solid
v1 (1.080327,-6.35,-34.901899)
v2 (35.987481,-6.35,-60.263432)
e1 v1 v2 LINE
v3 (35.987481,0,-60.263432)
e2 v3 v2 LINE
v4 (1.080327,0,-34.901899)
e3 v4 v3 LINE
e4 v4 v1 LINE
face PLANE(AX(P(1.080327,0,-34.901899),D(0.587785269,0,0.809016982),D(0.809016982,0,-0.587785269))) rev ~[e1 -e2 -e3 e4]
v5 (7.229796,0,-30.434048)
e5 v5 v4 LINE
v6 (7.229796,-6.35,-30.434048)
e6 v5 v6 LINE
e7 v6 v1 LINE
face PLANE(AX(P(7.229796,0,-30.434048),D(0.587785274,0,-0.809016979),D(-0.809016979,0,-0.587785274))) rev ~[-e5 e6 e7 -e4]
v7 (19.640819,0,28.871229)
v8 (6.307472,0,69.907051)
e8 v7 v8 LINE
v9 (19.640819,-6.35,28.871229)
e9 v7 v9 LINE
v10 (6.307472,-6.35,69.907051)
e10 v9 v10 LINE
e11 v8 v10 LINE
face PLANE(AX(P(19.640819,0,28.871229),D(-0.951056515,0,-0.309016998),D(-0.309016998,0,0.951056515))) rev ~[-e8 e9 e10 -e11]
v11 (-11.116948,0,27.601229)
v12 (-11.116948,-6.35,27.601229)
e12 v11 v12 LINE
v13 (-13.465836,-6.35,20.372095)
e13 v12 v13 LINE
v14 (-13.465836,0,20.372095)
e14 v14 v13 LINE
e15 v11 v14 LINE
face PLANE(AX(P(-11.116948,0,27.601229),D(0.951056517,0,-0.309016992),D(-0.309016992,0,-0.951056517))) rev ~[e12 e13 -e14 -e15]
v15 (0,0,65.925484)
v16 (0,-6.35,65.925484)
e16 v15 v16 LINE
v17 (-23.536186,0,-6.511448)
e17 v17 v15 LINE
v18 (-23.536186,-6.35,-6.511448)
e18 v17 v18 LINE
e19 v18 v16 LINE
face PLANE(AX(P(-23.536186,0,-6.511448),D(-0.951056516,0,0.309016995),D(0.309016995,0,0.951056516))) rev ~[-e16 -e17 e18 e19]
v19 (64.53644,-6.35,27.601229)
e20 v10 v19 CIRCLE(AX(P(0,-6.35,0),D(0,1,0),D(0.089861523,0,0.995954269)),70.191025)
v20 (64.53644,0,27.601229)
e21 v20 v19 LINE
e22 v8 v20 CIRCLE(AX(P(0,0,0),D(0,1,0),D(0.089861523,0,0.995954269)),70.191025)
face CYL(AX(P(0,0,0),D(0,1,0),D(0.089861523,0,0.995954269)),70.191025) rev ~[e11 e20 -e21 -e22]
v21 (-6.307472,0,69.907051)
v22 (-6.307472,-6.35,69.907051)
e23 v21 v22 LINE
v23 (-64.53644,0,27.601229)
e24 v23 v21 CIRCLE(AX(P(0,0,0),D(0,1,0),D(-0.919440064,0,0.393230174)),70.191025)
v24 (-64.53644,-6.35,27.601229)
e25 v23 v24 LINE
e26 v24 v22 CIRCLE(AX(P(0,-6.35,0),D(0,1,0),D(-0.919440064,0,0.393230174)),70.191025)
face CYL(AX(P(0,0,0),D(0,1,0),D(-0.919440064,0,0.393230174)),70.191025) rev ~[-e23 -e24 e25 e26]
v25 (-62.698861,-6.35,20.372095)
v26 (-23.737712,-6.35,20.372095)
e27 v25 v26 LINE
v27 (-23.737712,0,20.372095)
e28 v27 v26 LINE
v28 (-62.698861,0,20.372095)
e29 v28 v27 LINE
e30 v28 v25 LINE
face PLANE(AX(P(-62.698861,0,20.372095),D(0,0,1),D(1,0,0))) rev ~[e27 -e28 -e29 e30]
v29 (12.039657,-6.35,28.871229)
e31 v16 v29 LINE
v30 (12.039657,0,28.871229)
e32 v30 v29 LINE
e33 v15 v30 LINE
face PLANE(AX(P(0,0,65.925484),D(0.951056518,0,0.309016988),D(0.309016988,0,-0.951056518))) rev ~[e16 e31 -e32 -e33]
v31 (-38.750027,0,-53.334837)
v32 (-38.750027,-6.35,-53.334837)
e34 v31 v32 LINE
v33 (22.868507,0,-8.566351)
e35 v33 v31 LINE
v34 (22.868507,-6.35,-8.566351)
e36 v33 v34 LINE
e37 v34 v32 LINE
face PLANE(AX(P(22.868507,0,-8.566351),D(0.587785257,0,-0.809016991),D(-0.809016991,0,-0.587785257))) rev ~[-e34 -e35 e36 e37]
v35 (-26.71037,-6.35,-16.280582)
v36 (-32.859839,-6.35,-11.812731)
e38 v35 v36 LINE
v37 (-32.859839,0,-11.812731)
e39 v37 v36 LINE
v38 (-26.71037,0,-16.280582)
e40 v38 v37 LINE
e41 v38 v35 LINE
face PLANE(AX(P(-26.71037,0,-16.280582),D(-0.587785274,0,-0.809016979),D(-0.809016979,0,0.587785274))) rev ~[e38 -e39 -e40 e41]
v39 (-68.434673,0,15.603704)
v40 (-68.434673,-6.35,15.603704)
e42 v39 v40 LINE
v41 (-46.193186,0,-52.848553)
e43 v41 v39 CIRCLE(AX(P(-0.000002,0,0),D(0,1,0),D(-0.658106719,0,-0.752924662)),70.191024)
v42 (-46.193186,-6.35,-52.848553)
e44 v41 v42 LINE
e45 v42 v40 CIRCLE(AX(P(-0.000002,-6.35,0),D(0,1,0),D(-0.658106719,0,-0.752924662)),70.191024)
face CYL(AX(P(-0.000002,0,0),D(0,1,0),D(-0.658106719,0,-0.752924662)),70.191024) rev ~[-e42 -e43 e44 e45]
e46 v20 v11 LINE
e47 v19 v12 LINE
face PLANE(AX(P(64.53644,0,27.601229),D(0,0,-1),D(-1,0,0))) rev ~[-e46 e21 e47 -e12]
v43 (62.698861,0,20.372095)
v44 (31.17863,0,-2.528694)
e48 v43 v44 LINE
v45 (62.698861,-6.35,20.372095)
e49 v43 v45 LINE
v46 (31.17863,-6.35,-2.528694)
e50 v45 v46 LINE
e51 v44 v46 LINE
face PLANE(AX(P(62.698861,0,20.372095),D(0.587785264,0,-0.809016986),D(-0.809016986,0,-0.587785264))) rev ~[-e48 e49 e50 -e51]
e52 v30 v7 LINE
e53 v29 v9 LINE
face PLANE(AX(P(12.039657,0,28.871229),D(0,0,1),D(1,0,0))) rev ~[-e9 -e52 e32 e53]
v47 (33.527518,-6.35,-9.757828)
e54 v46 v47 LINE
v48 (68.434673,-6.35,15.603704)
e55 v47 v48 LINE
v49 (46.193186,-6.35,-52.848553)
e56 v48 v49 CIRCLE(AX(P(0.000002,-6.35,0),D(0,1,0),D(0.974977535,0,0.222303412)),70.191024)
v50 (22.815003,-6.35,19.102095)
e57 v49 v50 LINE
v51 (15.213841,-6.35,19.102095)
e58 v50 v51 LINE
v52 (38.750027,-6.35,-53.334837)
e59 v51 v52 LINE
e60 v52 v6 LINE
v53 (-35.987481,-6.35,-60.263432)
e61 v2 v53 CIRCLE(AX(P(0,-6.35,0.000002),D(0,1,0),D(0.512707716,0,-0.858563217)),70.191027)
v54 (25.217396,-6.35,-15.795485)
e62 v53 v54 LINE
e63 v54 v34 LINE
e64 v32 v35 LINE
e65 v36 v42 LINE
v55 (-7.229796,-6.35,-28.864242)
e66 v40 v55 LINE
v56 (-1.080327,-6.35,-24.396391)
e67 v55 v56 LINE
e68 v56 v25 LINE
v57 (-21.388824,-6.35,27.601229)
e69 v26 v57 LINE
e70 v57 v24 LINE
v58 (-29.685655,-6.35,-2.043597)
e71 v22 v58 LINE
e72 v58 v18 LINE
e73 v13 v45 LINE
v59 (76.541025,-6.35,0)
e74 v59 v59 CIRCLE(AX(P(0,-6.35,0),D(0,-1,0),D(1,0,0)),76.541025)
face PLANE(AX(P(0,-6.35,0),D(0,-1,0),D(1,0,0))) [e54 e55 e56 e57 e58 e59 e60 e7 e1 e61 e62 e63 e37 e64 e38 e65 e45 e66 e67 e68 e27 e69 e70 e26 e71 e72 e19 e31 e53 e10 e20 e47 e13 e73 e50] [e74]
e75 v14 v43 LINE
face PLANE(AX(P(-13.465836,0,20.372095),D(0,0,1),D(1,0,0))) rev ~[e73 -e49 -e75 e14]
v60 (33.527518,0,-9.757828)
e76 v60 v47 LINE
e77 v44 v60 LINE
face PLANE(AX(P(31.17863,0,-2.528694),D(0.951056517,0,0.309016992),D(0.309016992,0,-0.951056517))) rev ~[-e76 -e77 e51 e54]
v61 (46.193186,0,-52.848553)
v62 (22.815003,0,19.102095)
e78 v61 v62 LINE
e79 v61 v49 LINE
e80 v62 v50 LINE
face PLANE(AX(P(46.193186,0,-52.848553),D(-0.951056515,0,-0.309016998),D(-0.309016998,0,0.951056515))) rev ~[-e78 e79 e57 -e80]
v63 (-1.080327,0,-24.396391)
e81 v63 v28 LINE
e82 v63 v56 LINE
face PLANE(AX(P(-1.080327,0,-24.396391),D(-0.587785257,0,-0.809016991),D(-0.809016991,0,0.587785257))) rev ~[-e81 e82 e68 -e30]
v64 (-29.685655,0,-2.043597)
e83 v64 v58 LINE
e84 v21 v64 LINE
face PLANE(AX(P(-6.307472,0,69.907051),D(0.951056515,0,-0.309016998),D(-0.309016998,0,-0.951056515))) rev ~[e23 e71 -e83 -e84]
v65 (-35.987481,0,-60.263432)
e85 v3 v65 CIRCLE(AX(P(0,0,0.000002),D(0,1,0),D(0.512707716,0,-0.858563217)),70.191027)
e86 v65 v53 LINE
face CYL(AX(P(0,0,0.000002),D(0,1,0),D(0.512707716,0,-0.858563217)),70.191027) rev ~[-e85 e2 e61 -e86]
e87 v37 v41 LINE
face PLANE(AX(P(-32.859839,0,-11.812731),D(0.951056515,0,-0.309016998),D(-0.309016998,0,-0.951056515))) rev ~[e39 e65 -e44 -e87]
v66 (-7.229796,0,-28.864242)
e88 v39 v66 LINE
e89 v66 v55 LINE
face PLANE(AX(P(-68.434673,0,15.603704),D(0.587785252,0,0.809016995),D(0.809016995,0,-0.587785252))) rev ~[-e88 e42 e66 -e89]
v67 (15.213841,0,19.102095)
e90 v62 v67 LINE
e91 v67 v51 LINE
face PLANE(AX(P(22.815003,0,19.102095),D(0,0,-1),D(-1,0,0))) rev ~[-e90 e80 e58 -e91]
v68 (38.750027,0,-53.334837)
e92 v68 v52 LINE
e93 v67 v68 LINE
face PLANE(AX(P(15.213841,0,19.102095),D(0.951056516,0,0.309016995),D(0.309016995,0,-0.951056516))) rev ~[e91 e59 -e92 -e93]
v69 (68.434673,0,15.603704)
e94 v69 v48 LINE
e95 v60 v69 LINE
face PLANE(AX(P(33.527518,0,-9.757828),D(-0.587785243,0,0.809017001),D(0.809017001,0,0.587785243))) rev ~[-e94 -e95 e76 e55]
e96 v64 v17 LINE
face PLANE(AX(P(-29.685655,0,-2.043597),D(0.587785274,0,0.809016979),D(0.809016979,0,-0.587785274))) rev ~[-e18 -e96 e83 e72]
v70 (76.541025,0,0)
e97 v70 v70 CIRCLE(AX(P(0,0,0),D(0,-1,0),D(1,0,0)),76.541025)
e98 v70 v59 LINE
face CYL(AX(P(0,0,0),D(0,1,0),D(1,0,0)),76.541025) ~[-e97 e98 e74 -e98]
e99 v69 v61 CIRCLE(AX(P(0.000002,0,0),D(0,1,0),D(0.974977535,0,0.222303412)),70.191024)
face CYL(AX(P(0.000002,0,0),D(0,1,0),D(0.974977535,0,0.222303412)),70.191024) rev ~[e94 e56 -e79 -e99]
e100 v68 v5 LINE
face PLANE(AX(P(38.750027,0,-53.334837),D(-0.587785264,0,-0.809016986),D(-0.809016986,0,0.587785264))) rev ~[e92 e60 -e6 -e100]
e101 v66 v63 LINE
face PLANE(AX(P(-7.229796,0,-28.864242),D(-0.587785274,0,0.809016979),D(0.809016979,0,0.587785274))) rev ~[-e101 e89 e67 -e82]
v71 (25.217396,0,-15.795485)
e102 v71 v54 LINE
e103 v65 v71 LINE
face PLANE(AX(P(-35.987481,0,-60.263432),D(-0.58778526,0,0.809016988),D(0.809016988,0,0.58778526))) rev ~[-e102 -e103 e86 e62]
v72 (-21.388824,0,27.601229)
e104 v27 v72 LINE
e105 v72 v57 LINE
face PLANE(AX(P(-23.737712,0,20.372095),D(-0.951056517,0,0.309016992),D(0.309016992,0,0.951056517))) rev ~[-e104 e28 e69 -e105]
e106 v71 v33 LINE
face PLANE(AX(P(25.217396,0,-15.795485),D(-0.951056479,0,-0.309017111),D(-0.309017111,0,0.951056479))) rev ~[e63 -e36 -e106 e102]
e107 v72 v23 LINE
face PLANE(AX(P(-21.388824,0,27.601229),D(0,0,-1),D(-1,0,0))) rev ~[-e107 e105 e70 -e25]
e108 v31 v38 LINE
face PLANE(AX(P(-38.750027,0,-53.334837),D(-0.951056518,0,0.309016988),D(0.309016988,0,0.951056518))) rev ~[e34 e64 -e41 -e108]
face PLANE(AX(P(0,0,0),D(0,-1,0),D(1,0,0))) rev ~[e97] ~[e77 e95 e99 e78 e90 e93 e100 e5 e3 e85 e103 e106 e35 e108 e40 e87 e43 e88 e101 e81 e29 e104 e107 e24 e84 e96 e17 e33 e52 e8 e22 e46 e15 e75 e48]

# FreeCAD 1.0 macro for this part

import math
import FreeCAD as App
import Part
import Sketcher
from FreeCAD import Vector
Q = App.Units.Quantity

doc = App.newDocument("Part")
body = doc.addObject("PartDesign::Body", "Body")

# Sketch on XZ plane
sketch1 = body.newObject("Sketcher::SketchObject", "Sketch")
sketch1.AttachmentSupport = (doc.getObject("XZ_Plane"), [""])
sketch1.MapMode = "FlatFace"
sketch1.addGeometry(Part.Circle(Vector(0, 0, 0), Vector(0, 0, 1), 77), False)
sketch1.addGeometry(Part.LineSegment(Vector(-21, 28, 0), Vector(-65, 28, 0)), False)
sketch1.addGeometry(Part.ArcOfCircle(Part.Circle(Vector(0, 0, 0), Vector(0, 0, 1), 70), math.radians(95), math.radians(157)), False)
sketch1.addGeometry(Part.LineSegment(Vector(-6, 70, 0), Vector(-30, -2, 0)), False)
sketch1.addGeometry(Part.LineSegment(Vector(-30, -2, 0), Vector(-24, -7, 0)), False)
sketch1.addGeometry(Part.LineSegment(Vector(-24, -7, 0), Vector(0, 66, 0)), False)
sketch1.addGeometry(Part.LineSegment(Vector(0, 66, 0), Vector(12, 29, 0)), False)
sketch1.addGeometry(Part.LineSegment(Vector(12, 29, 0), Vector(20, 29, 0)), False)
sketch1.addGeometry(Part.LineSegment(Vector(20, 29, 0), Vector(6, 70, 0)), False)
sketch1.addGeometry(Part.ArcOfCircle(Part.Circle(Vector(0, 0, 0), Vector(0, 0, 1), 70), math.radians(23), math.radians(85)), False)
sketch1.addGeometry(Part.LineSegment(Vector(65, 28, 0), Vector(-11, 28, 0)), False)
sketch1.addGeometry(Part.LineSegment(Vector(-11, 28, 0), Vector(-13, 20, 0)), False)
sketch1.addGeometry(Part.LineSegment(Vector(-13, 20, 0), Vector(63, 20, 0)), False)
sketch1.addGeometry(Part.LineSegment(Vector(63, 20, 0), Vector(31, -3, 0)), False)
sketch1.addGeometry(Part.LineSegment(Vector(31, -3, 0), Vector(34, -10, 0)), False)
sketch1.addGeometry(Part.LineSegment(Vector(34, -10, 0), Vector(68, 16, 0)), False)
sketch1.addGeometry(Part.ArcOfCircle(Part.Circle(Vector(0, 0, 0), Vector(0, 0, 1), 70), math.radians(-49), math.radians(13)), False)
sketch1.addGeometry(Part.LineSegment(Vector(46, -53, 0), Vector(23, 19, 0)), False)
sketch1.addGeometry(Part.LineSegment(Vector(23, 19, 0), Vector(15, 19, 0)), False)
sketch1.addGeometry(Part.LineSegment(Vector(15, 19, 0), Vector(39, -53, 0)), False)
sketch1.addGeometry(Part.LineSegment(Vector(39, -53, 0), Vector(7, -30, 0)), False)
sketch1.addGeometry(Part.LineSegment(Vector(7, -30, 0), Vector(1, -35, 0)), False)
sketch1.addGeometry(Part.LineSegment(Vector(1, -35, 0), Vector(36, -60, 0)), False)
sketch1.addGeometry(Part.ArcOfCircle(Part.Circle(Vector(0, 0, 0), Vector(0, 0, 1), 70), math.radians(-121), math.radians(-59)), False)
sketch1.addGeometry(Part.LineSegment(Vector(-36, -60, 0), Vector(25, -16, 0)), False)
sketch1.addGeometry(Part.LineSegment(Vector(25, -16, 0), Vector(23, -9, 0)), False)
sketch1.addGeometry(Part.LineSegment(Vector(23, -9, 0), Vector(-39, -53, 0)), False)
sketch1.addGeometry(Part.LineSegment(Vector(-39, -53, 0), Vector(-27, -16, 0)), False)
sketch1.addGeometry(Part.LineSegment(Vector(-27, -16, 0), Vector(-33, -12, 0)), False)
sketch1.addGeometry(Part.LineSegment(Vector(-33, -12, 0), Vector(-46, -53, 0)), False)
sketch1.addGeometry(Part.ArcOfCircle(Part.Circle(Vector(0, 0, 0), Vector(0, 0, 1), 70), math.radians(167), math.radians(229)), False)
sketch1.addGeometry(Part.LineSegment(Vector(-68, 16, 0), Vector(-7, -29, 0)), False)
sketch1.addGeometry(Part.LineSegment(Vector(-7, -29, 0), Vector(-1, -24, 0)), False)
sketch1.addGeometry(Part.LineSegment(Vector(-1, -24, 0), Vector(-63, 20, 0)), False)
sketch1.addGeometry(Part.LineSegment(Vector(-63, 20, 0), Vector(-24, 20, 0)), False)
sketch1.addGeometry(Part.LineSegment(Vector(-24, 20, 0), Vector(-21, 28, 0)), False)
sketch1.addConstraint(Sketcher.Constraint("Coincident", 1, 2, 2, 2))
sketch1.addConstraint(Sketcher.Constraint("Coincident", 2, 1, 3, 1))
sketch1.addConstraint(Sketcher.Constraint("Coincident", 3, 2, 4, 1))
sketch1.addConstraint(Sketcher.Constraint("Coincident", 4, 2, 5, 1))
sketch1.addConstraint(Sketcher.Constraint("Coincident", 5, 2, 6, 1))
sketch1.addConstraint(Sketcher.Constraint("Coincident", 6, 2, 7, 1))
sketch1.addConstraint(Sketcher.Constraint("Coincident", 7, 2, 8, 1))
sketch1.addConstraint(Sketcher.Constraint("Coincident", 8, 2, 9, 2))
sketch1.addConstraint(Sketcher.Constraint("Coincident", 9, 1, 10, 1))
sketch1.addConstraint(Sketcher.Constraint("Coincident", 10, 2, 11, 1))
sketch1.addConstraint(Sketcher.Constraint("Coincident", 11, 2, 12, 1))
sketch1.addConstraint(Sketcher.Constraint("Coincident", 12, 2, 13, 1))
sketch1.addConstraint(Sketcher.Constraint("Coincident", 13, 2, 14, 1))
sketch1.addConstraint(Sketcher.Constraint("Coincident", 14, 2, 15, 1))
sketch1.addConstraint(Sketcher.Constraint("Coincident", 15, 2, 16, 2))
sketch1.addConstraint(Sketcher.Constraint("Coincident", 16, 1, 17, 1))
sketch1.addConstraint(Sketcher.Constraint("Coincident", 17, 2, 18, 1))
sketch1.addConstraint(Sketcher.Constraint("Coincident", 18, 2, 19, 1))
sketch1.addConstraint(Sketcher.Constraint("Coincident", 19, 2, 20, 1))
sketch1.addConstraint(Sketcher.Constraint("Coincident", 20, 2, 21, 1))
sketch1.addConstraint(Sketcher.Constraint("Coincident", 21, 2, 22, 1))
sketch1.addConstraint(Sketcher.Constraint("Coincident", 22, 2, 23, 2))
sketch1.addConstraint(Sketcher.Constraint("Coincident", 23, 1, 24, 1))
sketch1.addConstraint(Sketcher.Constraint("Coincident", 24, 2, 25, 1))
sketch1.addConstraint(Sketcher.Constraint("Coincident", 25, 2, 26, 1))
sketch1.addConstraint(Sketcher.Constraint("Coincident", 26, 2, 27, 1))
sketch1.addConstraint(Sketcher.Constraint("Coincident", 27, 2, 28, 1))
sketch1.addConstraint(Sketcher.Constraint("Coincident", 28, 2, 29, 1))
sketch1.addConstraint(Sketcher.Constraint("Coincident", 29, 2, 30, 2))
sketch1.addConstraint(Sketcher.Constraint("Coincident", 30, 1, 31, 1))
sketch1.addConstraint(Sketcher.Constraint("Coincident", 31, 2, 32, 1))
sketch1.addConstraint(Sketcher.Constraint("Coincident", 32, 2, 33, 1))
sketch1.addConstraint(Sketcher.Constraint("Coincident", 33, 2, 34, 1))
sketch1.addConstraint(Sketcher.Constraint("Coincident", 34, 2, 35, 1))
sketch1.addConstraint(Sketcher.Constraint("Coincident", 35, 2, 1, 1))
sketch1.addConstraint(Sketcher.Constraint("Horizontal", 1))
sketch1.addConstraint(Sketcher.Constraint("Horizontal", 7))
sketch1.addConstraint(Sketcher.Constraint("Horizontal", 10))
sketch1.addConstraint(Sketcher.Constraint("Horizontal", 12))
sketch1.addConstraint(Sketcher.Constraint("Horizontal", 18))
sketch1.addConstraint(Sketcher.Constraint("Horizontal", 34))
sketch1.addConstraint(Sketcher.Constraint("Coincident", 0, 3, -1, 1))
sketch1.addConstraint(Sketcher.Constraint("Coincident", 2, 3, -1, 1))
sketch1.addConstraint(Sketcher.Constraint("Coincident", 9, 3, -1, 1))
sketch1.addConstraint(Sketcher.Constraint("Coincident", 16, 3, -1, 1))
sketch1.addConstraint(Sketcher.Constraint("Coincident", 23, 3, -1, 1))
sketch1.addConstraint(Sketcher.Constraint("Coincident", 30, 3, -1, 1))
sketch1.addConstraint(Sketcher.Constraint("Equal", 2, 9))
sketch1.addConstraint(Sketcher.Constraint("Equal", 9, 16))
sketch1.addConstraint(Sketcher.Constraint("Equal", 9, 23))
sketch1.addConstraint(Sketcher.Constraint("Equal", 16, 30))
sketch1.addConstraint(Sketcher.Constraint("Symmetric", 19, 2, 26, 2, -2))
sketch1.addConstraint(Sketcher.Constraint("Symmetric", 12, 2, 33, 2, -2))
sketch1.addConstraint(Sketcher.Constraint("PointOnObject", 5, 2, -2))
sketch1.addConstraint(Sketcher.Constraint("Parallel", 3, 5))
sketch1.addConstraint(Sketcher.Constraint("Parallel", 6, 8))
sketch1.addConstraint(Sketcher.Constraint("Parallel", 5, 11))
sketch1.addConstraint(Sketcher.Constraint("Parallel", 8, 14))
sketch1.addConstraint(Sketcher.Constraint("Parallel", 13, 15))
sketch1.addConstraint(Sketcher.Constraint("Parallel", 14, 17))
sketch1.addConstraint(Sketcher.Constraint("Parallel", 17, 19))
sketch1.addConstraint(Sketcher.Constraint("Parallel", 4, 20))
sketch1.addConstraint(Sketcher.Constraint("Parallel", 15, 21))
sketch1.addConstraint(Sketcher.Constraint("Parallel", 20, 22))
sketch1.addConstraint(Sketcher.Constraint("Parallel", 21, 24))
sketch1.addConstraint(Sketcher.Constraint("Parallel", 19, 25))
sketch1.addConstraint(Sketcher.Constraint("Parallel", 24, 26))
sketch1.addConstraint(Sketcher.Constraint("Parallel", 11, 27))
sketch1.addConstraint(Sketcher.Constraint("Parallel", 22, 28))
sketch1.addConstraint(Sketcher.Constraint("Parallel", 27, 29))
sketch1.addConstraint(Sketcher.Constraint("Parallel", 28, 31))
sketch1.addConstraint(Sketcher.Constraint("Parallel", 26, 32))
sketch1.addConstraint(Sketcher.Constraint("Parallel", 31, 33))
sketch1.addConstraint(Sketcher.Constraint("Parallel", 29, 35))
sketch1.addConstraint(Sketcher.Constraint("Horizontal", 2, 1, 8, 2))
sketch1.addConstraint(Sketcher.Constraint("Horizontal", 1, 2, 9, 1))
sketch1.addConstraint(Sketcher.Constraint("Horizontal", 22, 2, 23, 1))
sketch1.addConstraint(Sketcher.Constraint("Horizontal", 16, 1, 29, 2))
sketch1.addConstraint(Sketcher.Constraint("Horizontal", 15, 2, 30, 1))
sketch1.addConstraint(Sketcher.Constraint("Equal", 7, 18))
sketch1.addConstraint(Sketcher.Constraint("Equal", 4, 11))
sketch1.addConstraint(Sketcher.Constraint("Equal", 6, 13))
sketch1.addConstraint(Sketcher.Constraint("Equal", 11, 14))
sketch1.addConstraint(Sketcher.Constraint("Equal", 8, 15))
sketch1.addConstraint(Sketcher.Constraint("Equal", 3, 17))
sketch1.addConstraint(Sketcher.Constraint("Equal", 5, 19))
sketch1.addConstraint(Sketcher.Constraint("Equal", 13, 20))
sketch1.addConstraint(Sketcher.Constraint("Equal", 14, 21))
sketch1.addConstraint(Sketcher.Constraint("Equal", 15, 22))
sketch1.addConstraint(Sketcher.Constraint("Equal", 17, 24))
sketch1.addConstraint(Sketcher.Constraint("Equal", 21, 25))
sketch1.addConstraint(Sketcher.Constraint("Equal", 19, 26))
sketch1.addConstraint(Sketcher.Constraint("Equal", 20, 27))
sketch1.addConstraint(Sketcher.Constraint("Equal", 25, 28))
sketch1.addConstraint(Sketcher.Constraint("Equal", 24, 31))
sketch1.addConstraint(Sketcher.Constraint("Equal", 28, 32))
sketch1.addConstraint(Sketcher.Constraint("DistanceY", 9, 1, 7, 2, Q("0.05 in")))
sketch1.addConstraint(Sketcher.Constraint("Diameter", 0, Q("153.08205 mm")))
sketch1.addConstraint(Sketcher.Constraint("Radius", 2, Q("70.191025 mm")))
sketch1.addConstraint(Sketcher.Constraint("DistanceX", 10, 2, 10, 1, Q("75.653388 mm")))
sketch1.addConstraint(Sketcher.Constraint("DistanceX", 34, 1, 34, 2, Q("38.961149 mm")))
sketch1.addConstraint(Sketcher.Constraint("DistanceY", 21, 2, -1, 1, Q("34.901899 mm")))
sketch1.addConstraint(Sketcher.Constraint("DistanceY", 3, 2, 23, 3, Q("2.043599 mm")))
sketch1.addConstraint(Sketcher.Constraint("DistanceY", 13, 2, 15, 2, Q("18.132398 mm")))
sketch1.addConstraint(Sketcher.Constraint("DistanceX", 16, 3, 17, 2, Q("22.815001 mm")))
pad1 = body.newObject("PartDesign::Pad", "Pad")
pad1.Profile = sketch1
pad1.Length = Q("0.25 in")

doc.recompute()
